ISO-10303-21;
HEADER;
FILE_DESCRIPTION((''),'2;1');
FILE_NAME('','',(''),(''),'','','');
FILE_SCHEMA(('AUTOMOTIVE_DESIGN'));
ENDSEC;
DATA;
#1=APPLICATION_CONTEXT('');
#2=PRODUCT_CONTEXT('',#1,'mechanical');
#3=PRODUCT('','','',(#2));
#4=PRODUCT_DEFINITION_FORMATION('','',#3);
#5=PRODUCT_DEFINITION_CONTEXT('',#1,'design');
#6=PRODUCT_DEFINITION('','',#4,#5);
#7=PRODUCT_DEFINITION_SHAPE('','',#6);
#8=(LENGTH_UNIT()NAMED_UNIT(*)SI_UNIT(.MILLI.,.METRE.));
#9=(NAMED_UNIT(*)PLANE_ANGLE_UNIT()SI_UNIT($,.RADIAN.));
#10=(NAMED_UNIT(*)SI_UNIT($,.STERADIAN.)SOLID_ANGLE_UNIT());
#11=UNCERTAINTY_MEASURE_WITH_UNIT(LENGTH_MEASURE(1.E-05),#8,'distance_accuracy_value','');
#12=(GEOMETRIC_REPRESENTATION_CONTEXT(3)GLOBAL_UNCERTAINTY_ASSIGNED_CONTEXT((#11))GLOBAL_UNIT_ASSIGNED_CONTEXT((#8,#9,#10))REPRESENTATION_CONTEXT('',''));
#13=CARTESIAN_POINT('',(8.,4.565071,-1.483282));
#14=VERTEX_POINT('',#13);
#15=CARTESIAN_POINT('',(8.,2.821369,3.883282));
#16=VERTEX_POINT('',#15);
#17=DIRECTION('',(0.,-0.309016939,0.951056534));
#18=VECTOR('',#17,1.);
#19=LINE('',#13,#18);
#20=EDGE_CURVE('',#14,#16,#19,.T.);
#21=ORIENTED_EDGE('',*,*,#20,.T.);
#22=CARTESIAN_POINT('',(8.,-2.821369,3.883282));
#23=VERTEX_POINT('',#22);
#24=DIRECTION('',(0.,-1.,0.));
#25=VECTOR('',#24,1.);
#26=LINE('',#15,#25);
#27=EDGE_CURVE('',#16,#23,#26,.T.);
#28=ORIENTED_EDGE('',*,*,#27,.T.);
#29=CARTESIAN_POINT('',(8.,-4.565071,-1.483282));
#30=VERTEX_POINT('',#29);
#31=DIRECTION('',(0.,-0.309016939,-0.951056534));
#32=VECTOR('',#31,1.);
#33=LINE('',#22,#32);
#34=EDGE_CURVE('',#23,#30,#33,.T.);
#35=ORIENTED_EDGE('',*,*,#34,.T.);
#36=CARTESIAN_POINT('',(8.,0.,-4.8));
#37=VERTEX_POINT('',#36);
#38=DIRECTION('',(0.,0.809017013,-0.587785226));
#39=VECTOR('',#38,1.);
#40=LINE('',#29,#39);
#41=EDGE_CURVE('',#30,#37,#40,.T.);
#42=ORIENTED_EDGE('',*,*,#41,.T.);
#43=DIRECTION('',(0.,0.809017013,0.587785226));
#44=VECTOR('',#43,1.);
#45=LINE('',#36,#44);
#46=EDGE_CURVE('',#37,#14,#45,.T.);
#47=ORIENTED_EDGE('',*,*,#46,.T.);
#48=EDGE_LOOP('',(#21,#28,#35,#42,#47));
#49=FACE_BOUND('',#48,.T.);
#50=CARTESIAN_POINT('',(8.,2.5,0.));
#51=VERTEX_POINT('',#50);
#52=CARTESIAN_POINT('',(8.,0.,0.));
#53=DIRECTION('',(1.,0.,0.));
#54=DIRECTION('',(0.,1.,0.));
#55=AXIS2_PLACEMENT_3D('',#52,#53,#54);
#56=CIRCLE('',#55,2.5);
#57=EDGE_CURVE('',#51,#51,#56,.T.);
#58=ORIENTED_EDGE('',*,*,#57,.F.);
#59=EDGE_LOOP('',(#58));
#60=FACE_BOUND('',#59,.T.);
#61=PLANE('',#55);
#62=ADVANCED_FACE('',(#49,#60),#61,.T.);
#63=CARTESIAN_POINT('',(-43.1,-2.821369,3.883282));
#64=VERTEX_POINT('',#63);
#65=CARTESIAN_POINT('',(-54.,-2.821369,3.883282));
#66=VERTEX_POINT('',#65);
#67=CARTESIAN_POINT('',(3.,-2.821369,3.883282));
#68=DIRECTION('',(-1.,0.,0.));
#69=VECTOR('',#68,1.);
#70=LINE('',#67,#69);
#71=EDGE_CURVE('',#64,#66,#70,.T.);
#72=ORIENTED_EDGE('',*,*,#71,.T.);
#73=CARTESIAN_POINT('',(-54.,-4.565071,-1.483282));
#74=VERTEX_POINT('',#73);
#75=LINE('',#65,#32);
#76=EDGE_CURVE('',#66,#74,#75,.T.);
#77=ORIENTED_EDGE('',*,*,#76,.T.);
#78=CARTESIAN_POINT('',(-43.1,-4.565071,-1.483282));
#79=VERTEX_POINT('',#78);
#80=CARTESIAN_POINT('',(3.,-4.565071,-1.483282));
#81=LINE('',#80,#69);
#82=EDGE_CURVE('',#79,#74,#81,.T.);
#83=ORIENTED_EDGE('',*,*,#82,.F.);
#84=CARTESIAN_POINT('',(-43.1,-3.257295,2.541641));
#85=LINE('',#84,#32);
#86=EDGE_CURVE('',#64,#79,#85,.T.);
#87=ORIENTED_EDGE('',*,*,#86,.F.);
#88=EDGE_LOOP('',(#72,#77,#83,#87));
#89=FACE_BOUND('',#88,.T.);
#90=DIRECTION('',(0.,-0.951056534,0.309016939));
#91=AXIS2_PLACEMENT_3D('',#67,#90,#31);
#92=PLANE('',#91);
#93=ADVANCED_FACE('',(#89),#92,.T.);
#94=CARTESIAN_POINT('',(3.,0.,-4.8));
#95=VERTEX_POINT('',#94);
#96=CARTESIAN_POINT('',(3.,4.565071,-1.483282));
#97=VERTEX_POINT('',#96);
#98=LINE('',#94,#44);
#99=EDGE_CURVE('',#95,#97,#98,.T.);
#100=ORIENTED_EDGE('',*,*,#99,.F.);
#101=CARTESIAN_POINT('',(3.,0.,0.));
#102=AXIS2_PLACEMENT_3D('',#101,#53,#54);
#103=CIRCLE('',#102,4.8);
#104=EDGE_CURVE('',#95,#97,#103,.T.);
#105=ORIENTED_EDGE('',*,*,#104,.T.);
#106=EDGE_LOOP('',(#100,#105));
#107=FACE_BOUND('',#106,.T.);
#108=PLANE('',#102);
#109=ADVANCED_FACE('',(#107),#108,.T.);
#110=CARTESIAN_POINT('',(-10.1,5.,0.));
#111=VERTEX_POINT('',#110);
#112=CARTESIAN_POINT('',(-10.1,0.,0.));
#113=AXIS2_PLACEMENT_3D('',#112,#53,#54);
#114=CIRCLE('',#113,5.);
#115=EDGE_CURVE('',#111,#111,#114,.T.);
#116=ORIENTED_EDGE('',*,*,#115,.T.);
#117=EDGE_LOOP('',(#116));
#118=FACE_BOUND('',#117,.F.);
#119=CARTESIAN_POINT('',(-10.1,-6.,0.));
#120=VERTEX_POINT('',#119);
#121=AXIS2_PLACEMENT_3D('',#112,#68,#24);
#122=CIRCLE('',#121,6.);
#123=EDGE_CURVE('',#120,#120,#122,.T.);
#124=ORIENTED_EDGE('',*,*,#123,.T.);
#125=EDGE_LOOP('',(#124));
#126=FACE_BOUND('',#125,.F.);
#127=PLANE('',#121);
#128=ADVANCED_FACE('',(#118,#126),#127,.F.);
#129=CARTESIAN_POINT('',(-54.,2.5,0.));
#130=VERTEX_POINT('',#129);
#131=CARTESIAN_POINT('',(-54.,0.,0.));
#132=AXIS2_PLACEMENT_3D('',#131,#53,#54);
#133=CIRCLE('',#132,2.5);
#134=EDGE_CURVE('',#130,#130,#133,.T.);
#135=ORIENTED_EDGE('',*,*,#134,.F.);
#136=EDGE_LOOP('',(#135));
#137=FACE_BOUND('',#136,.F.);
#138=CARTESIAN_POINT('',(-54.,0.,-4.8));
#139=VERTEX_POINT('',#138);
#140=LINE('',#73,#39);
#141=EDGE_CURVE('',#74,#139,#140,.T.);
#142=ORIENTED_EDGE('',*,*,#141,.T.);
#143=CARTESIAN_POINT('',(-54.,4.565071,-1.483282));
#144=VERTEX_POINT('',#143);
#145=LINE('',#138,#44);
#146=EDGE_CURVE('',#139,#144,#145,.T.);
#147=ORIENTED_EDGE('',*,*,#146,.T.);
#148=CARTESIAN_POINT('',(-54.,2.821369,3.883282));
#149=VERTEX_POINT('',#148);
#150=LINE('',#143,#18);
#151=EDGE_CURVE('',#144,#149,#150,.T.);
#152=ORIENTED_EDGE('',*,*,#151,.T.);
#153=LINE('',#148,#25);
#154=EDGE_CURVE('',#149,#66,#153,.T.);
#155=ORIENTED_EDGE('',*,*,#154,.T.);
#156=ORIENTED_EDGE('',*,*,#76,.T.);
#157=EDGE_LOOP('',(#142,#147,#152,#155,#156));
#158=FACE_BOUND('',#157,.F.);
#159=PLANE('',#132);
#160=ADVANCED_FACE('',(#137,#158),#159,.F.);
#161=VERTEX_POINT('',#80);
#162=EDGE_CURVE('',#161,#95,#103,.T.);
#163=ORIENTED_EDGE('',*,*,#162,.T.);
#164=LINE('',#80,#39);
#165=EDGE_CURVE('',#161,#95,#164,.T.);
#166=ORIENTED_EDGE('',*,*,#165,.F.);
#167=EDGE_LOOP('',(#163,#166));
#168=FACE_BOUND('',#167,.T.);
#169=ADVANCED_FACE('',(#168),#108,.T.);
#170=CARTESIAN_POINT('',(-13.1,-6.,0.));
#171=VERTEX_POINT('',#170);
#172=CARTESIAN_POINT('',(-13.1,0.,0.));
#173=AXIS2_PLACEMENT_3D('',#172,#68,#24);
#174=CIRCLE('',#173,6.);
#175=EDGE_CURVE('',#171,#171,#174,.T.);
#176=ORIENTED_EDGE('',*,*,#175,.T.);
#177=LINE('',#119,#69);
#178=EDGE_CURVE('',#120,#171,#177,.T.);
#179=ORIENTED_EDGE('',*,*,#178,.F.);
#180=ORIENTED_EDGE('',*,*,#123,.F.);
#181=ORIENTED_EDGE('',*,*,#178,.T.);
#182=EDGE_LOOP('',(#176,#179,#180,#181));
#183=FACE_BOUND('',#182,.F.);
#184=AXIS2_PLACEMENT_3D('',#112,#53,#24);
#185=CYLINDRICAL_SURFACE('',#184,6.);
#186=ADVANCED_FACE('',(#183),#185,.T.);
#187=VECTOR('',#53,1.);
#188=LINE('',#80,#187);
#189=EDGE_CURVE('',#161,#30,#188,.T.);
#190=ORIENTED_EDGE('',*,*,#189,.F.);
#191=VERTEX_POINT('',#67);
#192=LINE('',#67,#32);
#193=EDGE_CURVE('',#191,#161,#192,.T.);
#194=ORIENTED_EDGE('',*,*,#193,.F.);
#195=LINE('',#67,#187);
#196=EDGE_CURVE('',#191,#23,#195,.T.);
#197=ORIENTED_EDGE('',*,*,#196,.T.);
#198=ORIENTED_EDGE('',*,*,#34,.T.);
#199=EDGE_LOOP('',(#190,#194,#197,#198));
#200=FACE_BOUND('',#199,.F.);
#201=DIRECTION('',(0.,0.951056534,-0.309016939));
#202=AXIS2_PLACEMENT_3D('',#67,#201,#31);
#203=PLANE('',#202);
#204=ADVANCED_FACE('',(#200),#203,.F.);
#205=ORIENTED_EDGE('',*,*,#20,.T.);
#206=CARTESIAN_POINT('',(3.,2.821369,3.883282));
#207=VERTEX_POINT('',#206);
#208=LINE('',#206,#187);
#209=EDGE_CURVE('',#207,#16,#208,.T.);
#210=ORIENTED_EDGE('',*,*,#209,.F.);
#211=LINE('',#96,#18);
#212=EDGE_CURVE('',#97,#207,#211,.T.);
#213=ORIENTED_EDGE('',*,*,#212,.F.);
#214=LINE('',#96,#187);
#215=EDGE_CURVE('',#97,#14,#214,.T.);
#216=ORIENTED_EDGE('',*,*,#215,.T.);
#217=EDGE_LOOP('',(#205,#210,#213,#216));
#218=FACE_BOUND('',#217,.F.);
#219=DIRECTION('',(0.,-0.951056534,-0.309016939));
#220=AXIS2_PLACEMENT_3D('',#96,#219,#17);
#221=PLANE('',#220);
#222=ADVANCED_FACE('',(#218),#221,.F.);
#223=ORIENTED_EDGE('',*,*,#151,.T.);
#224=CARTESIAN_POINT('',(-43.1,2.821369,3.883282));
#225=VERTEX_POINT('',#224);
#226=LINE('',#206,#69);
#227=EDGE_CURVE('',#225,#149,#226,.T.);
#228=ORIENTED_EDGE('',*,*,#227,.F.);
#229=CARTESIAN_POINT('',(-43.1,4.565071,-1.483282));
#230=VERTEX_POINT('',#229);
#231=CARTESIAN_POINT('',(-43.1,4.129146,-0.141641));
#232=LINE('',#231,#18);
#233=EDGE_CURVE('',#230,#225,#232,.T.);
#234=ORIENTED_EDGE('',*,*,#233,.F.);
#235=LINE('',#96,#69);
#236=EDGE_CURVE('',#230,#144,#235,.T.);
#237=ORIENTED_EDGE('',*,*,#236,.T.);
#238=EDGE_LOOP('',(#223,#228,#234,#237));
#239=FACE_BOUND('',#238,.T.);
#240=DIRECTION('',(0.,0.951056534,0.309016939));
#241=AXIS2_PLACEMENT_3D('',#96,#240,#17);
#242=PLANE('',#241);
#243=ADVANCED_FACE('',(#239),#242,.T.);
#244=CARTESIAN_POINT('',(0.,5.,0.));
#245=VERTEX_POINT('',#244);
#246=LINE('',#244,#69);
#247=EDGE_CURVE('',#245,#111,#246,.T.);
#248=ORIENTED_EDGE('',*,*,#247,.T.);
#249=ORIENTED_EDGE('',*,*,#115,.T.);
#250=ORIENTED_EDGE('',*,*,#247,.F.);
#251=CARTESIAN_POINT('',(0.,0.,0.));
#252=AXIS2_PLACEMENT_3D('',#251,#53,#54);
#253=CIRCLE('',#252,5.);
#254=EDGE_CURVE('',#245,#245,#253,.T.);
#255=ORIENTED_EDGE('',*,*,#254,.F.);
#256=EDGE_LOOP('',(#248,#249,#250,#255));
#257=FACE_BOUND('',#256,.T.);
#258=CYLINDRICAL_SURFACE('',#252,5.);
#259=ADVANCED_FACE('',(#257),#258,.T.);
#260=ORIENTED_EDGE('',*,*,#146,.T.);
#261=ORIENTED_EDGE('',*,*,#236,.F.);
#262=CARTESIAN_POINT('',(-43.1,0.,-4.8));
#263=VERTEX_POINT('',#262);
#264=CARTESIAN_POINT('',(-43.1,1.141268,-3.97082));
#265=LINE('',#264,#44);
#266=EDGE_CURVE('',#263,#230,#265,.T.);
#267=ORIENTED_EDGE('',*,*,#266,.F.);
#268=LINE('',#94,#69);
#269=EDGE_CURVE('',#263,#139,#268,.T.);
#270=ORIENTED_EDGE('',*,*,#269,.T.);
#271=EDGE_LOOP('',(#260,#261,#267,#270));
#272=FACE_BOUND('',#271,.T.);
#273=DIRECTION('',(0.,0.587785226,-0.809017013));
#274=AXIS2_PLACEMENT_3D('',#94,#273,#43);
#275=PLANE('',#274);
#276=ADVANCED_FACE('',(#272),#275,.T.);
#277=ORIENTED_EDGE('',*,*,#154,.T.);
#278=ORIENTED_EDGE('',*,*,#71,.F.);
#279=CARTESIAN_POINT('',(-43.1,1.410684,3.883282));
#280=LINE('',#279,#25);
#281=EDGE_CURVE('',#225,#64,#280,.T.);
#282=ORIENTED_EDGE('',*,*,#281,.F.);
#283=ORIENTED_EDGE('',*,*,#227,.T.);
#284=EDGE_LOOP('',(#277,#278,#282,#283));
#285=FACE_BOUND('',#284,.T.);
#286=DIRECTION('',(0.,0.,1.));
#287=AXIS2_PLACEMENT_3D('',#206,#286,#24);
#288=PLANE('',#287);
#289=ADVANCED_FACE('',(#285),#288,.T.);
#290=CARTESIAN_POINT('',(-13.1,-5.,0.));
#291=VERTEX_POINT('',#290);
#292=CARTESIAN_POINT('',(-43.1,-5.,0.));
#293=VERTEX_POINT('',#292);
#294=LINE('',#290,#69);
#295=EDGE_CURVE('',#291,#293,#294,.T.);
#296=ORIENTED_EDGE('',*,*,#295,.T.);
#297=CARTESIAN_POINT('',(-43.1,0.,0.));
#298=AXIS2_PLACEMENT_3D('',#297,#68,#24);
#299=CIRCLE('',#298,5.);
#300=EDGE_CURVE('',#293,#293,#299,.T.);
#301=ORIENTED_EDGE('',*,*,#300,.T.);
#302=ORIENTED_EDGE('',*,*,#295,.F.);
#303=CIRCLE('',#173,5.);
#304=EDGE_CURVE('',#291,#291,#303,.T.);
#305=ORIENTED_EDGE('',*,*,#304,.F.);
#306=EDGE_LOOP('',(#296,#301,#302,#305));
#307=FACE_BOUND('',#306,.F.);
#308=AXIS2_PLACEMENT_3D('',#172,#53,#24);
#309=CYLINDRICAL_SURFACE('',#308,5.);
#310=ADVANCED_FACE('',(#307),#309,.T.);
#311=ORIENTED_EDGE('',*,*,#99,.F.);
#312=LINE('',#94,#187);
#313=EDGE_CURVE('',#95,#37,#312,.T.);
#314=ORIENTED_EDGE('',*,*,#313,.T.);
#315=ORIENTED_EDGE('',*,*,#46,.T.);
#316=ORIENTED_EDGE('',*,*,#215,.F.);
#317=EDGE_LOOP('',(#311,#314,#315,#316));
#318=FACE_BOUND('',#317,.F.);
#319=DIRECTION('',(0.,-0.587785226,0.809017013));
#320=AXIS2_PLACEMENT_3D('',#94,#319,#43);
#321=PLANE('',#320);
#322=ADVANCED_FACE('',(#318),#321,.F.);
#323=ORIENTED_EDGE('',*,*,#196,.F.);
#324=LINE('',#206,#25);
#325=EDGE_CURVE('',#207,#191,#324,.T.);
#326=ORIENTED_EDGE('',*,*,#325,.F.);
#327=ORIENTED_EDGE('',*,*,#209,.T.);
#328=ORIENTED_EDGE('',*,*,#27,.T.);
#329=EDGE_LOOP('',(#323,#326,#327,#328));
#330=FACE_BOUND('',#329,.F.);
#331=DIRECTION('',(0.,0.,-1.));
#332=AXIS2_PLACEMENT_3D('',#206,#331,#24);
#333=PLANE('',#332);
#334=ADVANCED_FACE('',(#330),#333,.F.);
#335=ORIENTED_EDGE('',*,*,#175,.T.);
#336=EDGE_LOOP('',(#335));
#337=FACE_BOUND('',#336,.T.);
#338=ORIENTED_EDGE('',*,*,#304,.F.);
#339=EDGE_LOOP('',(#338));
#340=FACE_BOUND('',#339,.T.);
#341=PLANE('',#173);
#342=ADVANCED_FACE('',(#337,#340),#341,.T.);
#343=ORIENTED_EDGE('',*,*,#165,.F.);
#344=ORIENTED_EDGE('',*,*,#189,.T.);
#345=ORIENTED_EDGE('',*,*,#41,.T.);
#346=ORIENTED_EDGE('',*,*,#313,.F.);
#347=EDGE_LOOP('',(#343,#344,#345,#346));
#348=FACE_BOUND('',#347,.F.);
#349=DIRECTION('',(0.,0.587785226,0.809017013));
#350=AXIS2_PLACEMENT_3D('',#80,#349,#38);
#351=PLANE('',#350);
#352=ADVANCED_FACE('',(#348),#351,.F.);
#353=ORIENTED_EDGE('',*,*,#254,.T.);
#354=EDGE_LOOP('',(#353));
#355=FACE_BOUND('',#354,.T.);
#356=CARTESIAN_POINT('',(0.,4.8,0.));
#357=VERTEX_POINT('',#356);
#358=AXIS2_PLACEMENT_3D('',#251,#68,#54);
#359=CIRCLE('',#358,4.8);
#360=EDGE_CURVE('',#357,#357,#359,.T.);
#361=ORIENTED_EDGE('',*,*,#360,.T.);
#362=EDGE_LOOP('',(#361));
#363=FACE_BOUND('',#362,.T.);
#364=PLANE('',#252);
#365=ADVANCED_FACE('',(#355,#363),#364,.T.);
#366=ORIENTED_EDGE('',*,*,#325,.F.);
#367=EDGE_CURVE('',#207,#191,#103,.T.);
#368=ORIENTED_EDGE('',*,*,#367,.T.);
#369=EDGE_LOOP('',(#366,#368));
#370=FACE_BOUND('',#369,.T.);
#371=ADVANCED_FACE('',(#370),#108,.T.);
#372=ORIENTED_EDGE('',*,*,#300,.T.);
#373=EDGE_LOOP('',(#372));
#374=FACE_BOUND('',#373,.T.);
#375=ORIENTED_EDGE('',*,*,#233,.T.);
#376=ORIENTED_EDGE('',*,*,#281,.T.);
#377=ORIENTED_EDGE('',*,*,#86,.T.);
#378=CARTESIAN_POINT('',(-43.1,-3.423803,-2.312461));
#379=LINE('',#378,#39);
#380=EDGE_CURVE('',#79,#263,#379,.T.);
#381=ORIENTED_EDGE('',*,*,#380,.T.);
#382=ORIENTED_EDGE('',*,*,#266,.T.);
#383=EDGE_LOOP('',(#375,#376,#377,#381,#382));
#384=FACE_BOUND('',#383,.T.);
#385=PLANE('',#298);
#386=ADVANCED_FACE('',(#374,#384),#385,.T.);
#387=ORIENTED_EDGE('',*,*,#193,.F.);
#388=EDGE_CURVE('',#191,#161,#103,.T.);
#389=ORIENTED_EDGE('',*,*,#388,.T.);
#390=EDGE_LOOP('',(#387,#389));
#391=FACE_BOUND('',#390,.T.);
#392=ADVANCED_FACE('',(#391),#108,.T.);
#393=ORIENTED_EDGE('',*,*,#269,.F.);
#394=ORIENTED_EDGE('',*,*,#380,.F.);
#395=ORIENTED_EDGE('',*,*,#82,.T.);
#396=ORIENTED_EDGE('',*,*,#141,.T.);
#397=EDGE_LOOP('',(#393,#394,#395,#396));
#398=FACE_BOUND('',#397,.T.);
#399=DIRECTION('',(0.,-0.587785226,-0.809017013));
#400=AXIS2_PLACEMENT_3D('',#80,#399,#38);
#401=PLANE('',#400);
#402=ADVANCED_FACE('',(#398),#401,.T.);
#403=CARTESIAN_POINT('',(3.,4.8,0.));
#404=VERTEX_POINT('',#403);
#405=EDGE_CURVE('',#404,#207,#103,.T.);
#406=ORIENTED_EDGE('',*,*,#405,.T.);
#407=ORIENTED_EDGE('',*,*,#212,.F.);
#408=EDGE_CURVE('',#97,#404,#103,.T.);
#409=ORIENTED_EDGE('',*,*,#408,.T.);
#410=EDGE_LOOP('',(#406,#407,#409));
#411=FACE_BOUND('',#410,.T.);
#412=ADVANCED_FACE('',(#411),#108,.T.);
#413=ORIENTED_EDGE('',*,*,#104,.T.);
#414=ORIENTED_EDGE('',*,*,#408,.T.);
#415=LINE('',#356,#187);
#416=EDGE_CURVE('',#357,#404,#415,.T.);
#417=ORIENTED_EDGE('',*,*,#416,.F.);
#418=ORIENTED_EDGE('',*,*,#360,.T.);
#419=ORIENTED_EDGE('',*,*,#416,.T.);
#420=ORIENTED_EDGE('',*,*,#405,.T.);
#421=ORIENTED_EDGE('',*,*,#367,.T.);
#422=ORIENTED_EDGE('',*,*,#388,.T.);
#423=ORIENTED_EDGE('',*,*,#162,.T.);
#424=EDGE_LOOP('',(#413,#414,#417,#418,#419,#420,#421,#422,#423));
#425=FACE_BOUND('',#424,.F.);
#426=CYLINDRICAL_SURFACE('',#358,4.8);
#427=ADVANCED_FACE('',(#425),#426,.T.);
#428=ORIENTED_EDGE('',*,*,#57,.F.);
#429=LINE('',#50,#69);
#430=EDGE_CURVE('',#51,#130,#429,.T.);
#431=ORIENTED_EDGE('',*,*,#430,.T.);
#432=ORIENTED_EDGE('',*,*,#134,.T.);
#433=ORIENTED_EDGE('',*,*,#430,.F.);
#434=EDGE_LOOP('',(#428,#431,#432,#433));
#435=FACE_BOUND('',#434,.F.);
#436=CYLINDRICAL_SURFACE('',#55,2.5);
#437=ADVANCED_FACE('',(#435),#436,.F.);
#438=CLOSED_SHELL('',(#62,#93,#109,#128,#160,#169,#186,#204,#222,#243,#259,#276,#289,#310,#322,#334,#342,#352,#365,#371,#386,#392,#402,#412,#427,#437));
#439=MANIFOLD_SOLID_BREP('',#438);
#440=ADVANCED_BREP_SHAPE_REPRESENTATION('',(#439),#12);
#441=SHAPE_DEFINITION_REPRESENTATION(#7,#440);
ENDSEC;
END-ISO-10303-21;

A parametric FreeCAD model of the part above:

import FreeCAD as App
import Part
import Sketcher
Q = App.Units.Quantity


def add_polygon(sketch, points):
    """Adds a closed chain of lines whose ends are joined by coincident constraints."""
    first, n = sketch.GeometryCount, len(points)
    for a, b in zip(points, points[1:] + points[:1]):
        sketch.addGeometry(Part.LineSegment(App.Vector(*a, 0), App.Vector(*b, 0)), False)
    for i in range(n):
        sketch.addConstraint(Sketcher.Constraint("Coincident", first + i, 2, first + (i + 1) % n, 1))

doc = App.newDocument("Part")
body = doc.addObject("PartDesign::Body", "Body")

sketch1 = doc.addObject("Sketcher::SketchObject", "Sketch")
body.addObject(sketch1)
sketch1.AttachmentSupport = (doc.YZ_Plane, [""])
sketch1.MapMode = "FlatFace"
sketch1.addGeometry(Part.Circle(App.Vector(0, 0, 0), App.Vector(0, 0, 1), 5), False)
sketch1.addConstraint(Sketcher.Constraint("Coincident", 0, 3, -1, 1))
sketch1.addConstraint(Sketcher.Constraint("Diameter", 0, 10.0))
pad1 = doc.addObject("PartDesign::Pad", "Pad")
body.addObject(pad1)
pad1.Profile = sketch1
pad1.Length = 10.1
pad1.Reversed = True

sketch2 = doc.addObject("Sketcher::SketchObject", "Sketch001")
body.addObject(sketch2)
sketch2.AttachmentSupport = (doc.YZ_Plane, [""])
sketch2.MapMode = "FlatFace"
sketch2.addGeometry(Part.Circle(App.Vector(0, 0, 0), App.Vector(0, 0, 1), 4.8), False)
sketch2.addConstraint(Sketcher.Constraint("Coincident", 0, 3, -1, 1))
sketch2.addConstraint(Sketcher.Constraint("Diameter", 0, 9.6))
pad2 = doc.addObject("PartDesign::Pad", "Pad001")
body.addObject(pad2)
pad2.Profile = sketch2
pad2.Length = 3

sketch3 = doc.addObject("Sketcher::SketchObject", "Sketch002")
body.addObject(sketch3)
sketch3.AttachmentSupport = (doc.YZ_Plane, [""])
sketch3.MapMode = "FlatFace"
sketch3.AttachmentOffset = App.Placement(App.Vector(0, 0, 3), App.Rotation())
add_polygon(sketch3, [(-5, -1), (0, -5), (5, -1), (3, 4), (-3, 4)])
sketch3.addConstraint(Sketcher.Constraint("Horizontal", 3))
sketch3.addConstraint(Sketcher.Constraint("Symmetric", 1, 2, 4, 2, -2))
sketch3.addConstraint(Sketcher.Constraint("PointOnObject", 0, 2, -2))
sketch3.addConstraint(Sketcher.Constraint("Equal", 1, 2))
sketch3.addConstraint(Sketcher.Constraint("Equal", 2, 4))
sketch3.addConstraint(Sketcher.Constraint("Angle", 0, Q("-35.999998 deg")))
sketch3.addConstraint(Sketcher.Constraint("Angle", 2, Q("107.999997 deg")))
sketch3.addConstraint(Sketcher.Constraint("DistanceY", 0, 2, -1, 1, 4.8))
sketch3.addConstraint(Sketcher.Constraint("DistanceX", 2, 2, 1, 2, 1.743702))
pad3 = doc.addObject("PartDesign::Pad", "Pad002")
body.addObject(pad3)
pad3.Profile = sketch3
pad3.Type = "TwoLengths"
pad3.Length = 5
pad3.Length2 = 57

sketch4 = doc.addObject("Sketcher::SketchObject", "Sketch003")
body.addObject(sketch4)
sketch4.AttachmentSupport = (doc.YZ_Plane, [""])
sketch4.MapMode = "FlatFace"
sketch4.AttachmentOffset = App.Placement(App.Vector(0, 0, -10.1), App.Rotation())
sketch4.addGeometry(Part.Circle(App.Vector(0, 0, 0), App.Vector(0, 0, 1), 6), False)
sketch4.addConstraint(Sketcher.Constraint("Coincident", 0, 3, -1, 1))
sketch4.addConstraint(Sketcher.Constraint("Diameter", 0, 12.0))
pad4 = doc.addObject("PartDesign::Pad", "Pad003")
body.addObject(pad4)
pad4.Profile = sketch4
pad4.Length = 3
pad4.Reversed = True

sketch5 = doc.addObject("Sketcher::SketchObject", "Sketch004")
body.addObject(sketch5)
sketch5.AttachmentSupport = (doc.YZ_Plane, [""])
sketch5.MapMode = "FlatFace"
sketch5.AttachmentOffset = App.Placement(App.Vector(0, 0, -13.1), App.Rotation())
sketch5.addGeometry(Part.Circle(App.Vector(0, 0, 0), App.Vector(0, 0, 1), 5), False)
sketch5.addConstraint(Sketcher.Constraint("Coincident", 0, 3, -1, 1))
sketch5.addConstraint(Sketcher.Constraint("Diameter", 0, 10.0))
pad5 = doc.addObject("PartDesign::Pad", "Pad004")
body.addObject(pad5)
pad5.Profile = sketch5
pad5.Length = 30
pad5.Reversed = True

sketch6 = doc.addObject("Sketcher::SketchObject", "Sketch005")
body.addObject(sketch6)
sketch6.AttachmentSupport = (doc.YZ_Plane, [""])
sketch6.MapMode = "FlatFace"
sketch6.AttachmentOffset = App.Placement(App.Vector(0, 0, 8), App.Rotation())
sketch6.addGeometry(Part.Circle(App.Vector(0, 0, 0), App.Vector(0, 0, 1), 2.5), False)
sketch6.addConstraint(Sketcher.Constraint("Coincident", 0, 3, -1, 1))
sketch6.addConstraint(Sketcher.Constraint("Diameter", 0, 5.0))
pocket1 = doc.addObject("PartDesign::Pocket", "Pocket")
body.addObject(pocket1)
pocket1.Profile = sketch6
pocket1.Length = 80

doc.recompute()
